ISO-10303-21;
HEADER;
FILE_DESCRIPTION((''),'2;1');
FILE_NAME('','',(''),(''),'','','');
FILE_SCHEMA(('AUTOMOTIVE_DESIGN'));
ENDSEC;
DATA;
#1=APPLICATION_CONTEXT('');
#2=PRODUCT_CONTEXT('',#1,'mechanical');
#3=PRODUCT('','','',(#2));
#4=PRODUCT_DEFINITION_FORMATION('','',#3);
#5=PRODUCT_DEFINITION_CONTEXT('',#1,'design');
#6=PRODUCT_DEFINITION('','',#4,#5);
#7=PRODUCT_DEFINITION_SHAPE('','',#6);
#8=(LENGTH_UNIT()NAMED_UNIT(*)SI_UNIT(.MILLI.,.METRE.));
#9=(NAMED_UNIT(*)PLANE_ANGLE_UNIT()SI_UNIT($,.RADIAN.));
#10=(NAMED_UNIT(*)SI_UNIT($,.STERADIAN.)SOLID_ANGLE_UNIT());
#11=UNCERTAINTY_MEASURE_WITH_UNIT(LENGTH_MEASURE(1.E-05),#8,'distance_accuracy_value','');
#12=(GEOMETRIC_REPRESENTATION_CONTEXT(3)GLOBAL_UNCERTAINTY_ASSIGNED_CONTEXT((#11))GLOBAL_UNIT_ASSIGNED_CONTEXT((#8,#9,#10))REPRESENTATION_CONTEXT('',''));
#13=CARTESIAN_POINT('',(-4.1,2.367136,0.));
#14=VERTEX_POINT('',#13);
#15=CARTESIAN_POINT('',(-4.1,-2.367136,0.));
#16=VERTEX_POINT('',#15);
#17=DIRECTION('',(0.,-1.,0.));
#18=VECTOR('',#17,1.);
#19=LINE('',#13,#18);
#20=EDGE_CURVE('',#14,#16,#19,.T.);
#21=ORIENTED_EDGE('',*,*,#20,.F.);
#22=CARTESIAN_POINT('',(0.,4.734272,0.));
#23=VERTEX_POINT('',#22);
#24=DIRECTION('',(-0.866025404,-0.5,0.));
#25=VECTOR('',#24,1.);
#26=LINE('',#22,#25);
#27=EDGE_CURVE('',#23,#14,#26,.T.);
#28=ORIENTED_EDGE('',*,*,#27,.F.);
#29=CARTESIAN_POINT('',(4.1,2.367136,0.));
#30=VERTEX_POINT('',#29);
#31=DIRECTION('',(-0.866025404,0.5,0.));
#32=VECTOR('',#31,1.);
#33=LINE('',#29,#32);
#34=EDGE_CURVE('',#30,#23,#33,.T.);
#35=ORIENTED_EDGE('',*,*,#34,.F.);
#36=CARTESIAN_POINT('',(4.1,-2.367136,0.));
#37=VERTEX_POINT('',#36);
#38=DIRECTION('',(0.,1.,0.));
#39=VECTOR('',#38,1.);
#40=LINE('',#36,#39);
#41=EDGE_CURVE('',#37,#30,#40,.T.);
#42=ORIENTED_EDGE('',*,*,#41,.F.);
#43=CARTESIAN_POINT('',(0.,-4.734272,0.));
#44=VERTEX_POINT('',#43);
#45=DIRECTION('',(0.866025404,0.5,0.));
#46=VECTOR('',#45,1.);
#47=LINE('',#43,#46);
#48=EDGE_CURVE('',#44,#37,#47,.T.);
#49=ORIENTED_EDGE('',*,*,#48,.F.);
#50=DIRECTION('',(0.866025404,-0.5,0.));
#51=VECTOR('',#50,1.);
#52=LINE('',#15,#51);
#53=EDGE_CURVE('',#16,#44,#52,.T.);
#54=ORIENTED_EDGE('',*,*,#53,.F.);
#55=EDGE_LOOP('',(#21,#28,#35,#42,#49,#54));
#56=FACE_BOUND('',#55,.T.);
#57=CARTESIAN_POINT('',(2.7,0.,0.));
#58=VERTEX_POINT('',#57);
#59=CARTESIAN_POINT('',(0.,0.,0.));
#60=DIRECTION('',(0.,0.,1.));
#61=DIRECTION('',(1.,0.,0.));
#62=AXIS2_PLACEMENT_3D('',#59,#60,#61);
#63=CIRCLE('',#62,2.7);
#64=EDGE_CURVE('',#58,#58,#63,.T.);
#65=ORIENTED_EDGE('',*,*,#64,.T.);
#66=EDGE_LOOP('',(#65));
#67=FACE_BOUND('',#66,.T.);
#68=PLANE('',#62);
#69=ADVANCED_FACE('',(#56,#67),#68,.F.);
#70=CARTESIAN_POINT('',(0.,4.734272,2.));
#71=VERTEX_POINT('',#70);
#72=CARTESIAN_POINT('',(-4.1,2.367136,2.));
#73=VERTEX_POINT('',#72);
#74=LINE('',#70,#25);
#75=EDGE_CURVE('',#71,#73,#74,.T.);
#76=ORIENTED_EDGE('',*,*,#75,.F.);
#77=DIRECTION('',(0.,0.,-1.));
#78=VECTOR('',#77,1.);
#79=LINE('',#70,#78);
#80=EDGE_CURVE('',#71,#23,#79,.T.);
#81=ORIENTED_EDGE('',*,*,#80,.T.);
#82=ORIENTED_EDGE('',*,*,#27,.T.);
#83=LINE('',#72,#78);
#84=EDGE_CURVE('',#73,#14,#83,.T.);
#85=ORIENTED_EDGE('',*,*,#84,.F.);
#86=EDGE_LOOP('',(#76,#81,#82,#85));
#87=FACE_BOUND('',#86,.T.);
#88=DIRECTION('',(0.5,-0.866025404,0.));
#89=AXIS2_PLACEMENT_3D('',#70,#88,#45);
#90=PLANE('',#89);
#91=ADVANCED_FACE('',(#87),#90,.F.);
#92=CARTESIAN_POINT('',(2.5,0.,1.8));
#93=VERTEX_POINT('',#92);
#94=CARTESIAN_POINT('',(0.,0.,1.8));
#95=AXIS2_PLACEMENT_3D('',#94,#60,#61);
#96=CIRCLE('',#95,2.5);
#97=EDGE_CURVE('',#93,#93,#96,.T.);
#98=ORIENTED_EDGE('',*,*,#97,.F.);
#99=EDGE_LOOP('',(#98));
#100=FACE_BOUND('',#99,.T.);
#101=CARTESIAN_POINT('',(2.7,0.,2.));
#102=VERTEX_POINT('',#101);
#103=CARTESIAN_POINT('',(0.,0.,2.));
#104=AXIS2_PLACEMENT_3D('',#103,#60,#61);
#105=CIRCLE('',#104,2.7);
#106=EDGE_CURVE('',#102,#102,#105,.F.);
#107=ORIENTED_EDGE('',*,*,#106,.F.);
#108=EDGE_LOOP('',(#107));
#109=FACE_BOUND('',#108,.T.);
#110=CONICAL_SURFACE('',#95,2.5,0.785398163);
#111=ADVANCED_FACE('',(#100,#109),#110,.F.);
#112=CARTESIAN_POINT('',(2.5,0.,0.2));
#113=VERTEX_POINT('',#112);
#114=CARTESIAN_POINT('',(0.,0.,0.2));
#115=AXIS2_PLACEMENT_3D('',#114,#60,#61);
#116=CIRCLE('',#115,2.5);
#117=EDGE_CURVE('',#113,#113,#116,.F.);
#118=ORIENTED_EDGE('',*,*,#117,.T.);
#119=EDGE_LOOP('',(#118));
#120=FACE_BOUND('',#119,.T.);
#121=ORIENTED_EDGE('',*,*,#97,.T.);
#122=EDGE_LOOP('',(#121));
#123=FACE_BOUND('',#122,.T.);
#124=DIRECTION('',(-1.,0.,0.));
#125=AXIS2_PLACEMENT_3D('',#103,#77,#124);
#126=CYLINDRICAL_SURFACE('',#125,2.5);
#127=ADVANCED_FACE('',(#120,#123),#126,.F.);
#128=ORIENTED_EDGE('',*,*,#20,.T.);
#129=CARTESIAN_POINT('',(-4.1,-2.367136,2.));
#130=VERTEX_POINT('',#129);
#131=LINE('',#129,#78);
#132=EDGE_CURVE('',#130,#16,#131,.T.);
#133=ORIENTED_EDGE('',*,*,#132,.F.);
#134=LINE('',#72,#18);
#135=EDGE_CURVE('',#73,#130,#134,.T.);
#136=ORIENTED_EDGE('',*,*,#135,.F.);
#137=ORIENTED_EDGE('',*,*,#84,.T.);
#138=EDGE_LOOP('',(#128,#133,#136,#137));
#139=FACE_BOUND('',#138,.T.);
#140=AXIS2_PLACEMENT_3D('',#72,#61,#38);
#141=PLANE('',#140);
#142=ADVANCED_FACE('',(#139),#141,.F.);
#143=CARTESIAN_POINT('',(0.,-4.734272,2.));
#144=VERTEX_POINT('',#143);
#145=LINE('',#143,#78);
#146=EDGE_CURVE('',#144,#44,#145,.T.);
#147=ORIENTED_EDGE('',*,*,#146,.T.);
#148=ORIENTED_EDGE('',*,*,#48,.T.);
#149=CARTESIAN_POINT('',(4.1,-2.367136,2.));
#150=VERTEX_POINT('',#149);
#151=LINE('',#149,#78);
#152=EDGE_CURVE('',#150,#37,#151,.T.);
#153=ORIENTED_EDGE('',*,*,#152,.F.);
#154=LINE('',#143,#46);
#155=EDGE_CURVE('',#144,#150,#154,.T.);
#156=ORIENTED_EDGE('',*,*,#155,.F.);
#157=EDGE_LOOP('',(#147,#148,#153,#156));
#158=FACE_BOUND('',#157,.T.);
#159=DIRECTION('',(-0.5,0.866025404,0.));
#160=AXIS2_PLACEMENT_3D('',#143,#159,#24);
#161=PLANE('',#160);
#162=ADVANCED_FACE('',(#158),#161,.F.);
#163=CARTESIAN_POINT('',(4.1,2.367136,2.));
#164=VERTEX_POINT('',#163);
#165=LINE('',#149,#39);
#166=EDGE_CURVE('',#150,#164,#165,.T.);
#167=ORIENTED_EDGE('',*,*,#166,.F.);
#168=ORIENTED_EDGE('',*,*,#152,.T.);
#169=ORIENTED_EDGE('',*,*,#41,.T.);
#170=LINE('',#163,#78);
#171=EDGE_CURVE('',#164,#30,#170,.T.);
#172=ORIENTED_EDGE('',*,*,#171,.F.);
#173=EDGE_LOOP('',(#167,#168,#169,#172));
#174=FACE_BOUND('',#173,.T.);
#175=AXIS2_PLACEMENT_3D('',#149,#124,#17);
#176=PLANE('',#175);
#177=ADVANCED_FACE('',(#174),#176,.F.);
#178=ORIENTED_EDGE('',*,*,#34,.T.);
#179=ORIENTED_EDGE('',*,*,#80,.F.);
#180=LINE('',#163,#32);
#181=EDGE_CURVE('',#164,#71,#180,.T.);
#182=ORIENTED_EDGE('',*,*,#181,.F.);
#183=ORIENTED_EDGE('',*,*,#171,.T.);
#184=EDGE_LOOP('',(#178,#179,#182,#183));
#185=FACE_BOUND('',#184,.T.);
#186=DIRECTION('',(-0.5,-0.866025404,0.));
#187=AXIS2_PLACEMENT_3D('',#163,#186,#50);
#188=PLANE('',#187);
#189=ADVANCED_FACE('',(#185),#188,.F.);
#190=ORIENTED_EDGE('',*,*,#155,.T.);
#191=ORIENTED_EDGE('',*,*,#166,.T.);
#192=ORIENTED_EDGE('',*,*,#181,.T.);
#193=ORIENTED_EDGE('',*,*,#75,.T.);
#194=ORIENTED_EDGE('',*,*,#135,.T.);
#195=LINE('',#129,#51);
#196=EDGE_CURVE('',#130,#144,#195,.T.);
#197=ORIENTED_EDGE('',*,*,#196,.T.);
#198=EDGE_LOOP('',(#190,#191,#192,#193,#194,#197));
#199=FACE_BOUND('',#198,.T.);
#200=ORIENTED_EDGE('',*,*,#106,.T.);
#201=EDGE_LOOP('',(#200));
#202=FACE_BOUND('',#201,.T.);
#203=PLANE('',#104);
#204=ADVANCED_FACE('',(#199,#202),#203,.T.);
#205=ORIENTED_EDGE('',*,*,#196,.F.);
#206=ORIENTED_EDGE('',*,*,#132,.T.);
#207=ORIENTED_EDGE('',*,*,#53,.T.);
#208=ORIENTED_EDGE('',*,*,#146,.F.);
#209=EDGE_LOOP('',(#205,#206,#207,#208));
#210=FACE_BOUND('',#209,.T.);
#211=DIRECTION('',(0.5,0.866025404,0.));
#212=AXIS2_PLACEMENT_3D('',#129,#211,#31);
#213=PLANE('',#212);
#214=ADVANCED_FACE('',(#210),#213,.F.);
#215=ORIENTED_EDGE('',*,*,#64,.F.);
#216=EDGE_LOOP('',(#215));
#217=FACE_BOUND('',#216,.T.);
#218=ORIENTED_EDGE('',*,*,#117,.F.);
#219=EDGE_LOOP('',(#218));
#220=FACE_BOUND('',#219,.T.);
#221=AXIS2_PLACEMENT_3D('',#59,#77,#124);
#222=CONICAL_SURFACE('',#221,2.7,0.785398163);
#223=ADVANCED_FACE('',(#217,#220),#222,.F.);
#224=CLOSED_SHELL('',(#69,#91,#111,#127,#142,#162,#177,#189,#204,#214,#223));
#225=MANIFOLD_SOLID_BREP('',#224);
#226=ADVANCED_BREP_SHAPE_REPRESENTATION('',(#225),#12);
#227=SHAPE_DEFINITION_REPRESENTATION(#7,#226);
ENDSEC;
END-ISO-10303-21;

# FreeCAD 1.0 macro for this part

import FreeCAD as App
import Part
import Sketcher
from FreeCAD import Vector
Q = App.Units.Quantity


def edges_at(feature, points):
    """Names of the edges that pass closest to the given points."""
    edges = feature.Shape.Edges
    near = lambda p: min(range(len(edges)), key=lambda i: edges[i].distToShape(Part.Vertex(*p))[0])
    return sorted({f"Edge{near(p) + 1}" for p in points})

doc = App.newDocument("Part")
body = doc.addObject("PartDesign::Body", "Body")

# Sketch on XY plane
sketch1 = body.newObject("Sketcher::SketchObject", "Sketch")
sketch1.AttachmentSupport = (doc.getObject("XY_Plane"), [""])
sketch1.MapMode = "FlatFace"
sketch1.addGeometry([
    Part.LineSegment(Vector(0, 4.7, 0), Vector(-4.1, 2.4, 0)),  # 0
    Part.LineSegment(Vector(-4.1, 2.4, 0), Vector(-4.1, -2.4, 0)),  # 1
    Part.LineSegment(Vector(-4.1, -2.4, 0), Vector(0, -4.7, 0)),  # 2
    Part.LineSegment(Vector(0, -4.7, 0), Vector(4.1, -2.4, 0)),  # 3
    Part.LineSegment(Vector(4.1, -2.4, 0), Vector(4.1, 2.4, 0)),  # 4
    Part.LineSegment(Vector(4.1, 2.4, 0), Vector(0, 4.7, 0)),  # 5
    Part.Circle(Vector(0, 0, 0), Vector(0, 0, 1), 2.5),  # 6
], False)
sketch1.addConstraint([
    Sketcher.Constraint("Coincident", 0, 2, 1, 1),
    Sketcher.Constraint("Coincident", 1, 2, 2, 1),
    Sketcher.Constraint("Coincident", 2, 2, 3, 1),
    Sketcher.Constraint("Coincident", 3, 2, 4, 1),
    Sketcher.Constraint("Coincident", 4, 2, 5, 1),
    Sketcher.Constraint("Coincident", 5, 2, 0, 1),
    Sketcher.Constraint("Vertical", 1),
    Sketcher.Constraint("Vertical", 4),
    Sketcher.Constraint("Coincident", 6, 3, -1, 1),
    Sketcher.Constraint("Symmetric", 0, 2, 3, 2, -1, 1),
    Sketcher.Constraint("Symmetric", 2, 2, 5, 2, -1, 1),
    Sketcher.Constraint("PointOnObject", 2, 2, -2),
    Sketcher.Constraint("Parallel", 2, 5),
    Sketcher.Constraint("Horizontal", 1, 2, 3, 2),
    Sketcher.Constraint("Diameter", 6, 5.0),
    Sketcher.Constraint("Angle", 0, Q("-150 deg")),
    Sketcher.Constraint("DistanceX", 0, 2, -1, 1, 4.1),
    Sketcher.Constraint("DistanceY", 1, 2, 1, 1, 4.734272),
])
pad1 = body.newObject("PartDesign::Pad", "Pad")
pad1.Profile = sketch1
pad1.Length = 2
doc.recompute()

chamfer = body.newObject("PartDesign::Chamfer", "Chamfer")
chamfer.Base = (pad1, edges_at(pad1, [(-2.5, 0, 0), (-2.5, 0, 2)]))
chamfer.Size = 0.2

doc.recompute()
